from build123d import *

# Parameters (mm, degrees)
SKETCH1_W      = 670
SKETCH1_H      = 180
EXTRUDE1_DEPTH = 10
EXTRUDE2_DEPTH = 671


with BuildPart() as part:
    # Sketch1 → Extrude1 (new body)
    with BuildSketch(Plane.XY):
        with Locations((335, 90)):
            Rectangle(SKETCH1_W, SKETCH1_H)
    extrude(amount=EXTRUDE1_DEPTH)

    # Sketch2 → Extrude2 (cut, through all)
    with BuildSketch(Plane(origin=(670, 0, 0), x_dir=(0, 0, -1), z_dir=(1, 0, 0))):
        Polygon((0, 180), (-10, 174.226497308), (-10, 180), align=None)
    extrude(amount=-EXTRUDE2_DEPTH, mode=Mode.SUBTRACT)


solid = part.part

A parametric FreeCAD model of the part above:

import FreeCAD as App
import Part
import Sketcher
Q = App.Units.Quantity

doc = App.newDocument("Part")
body = doc.addObject("PartDesign::Body", "Body")

sketch1 = body.newObject("Sketcher::SketchObject", "Sketch")
sketch1.AttachmentSupport = (doc.getObject("XY_Plane"), [""])
sketch1.MapMode = "FlatFace"
sketch1.addGeometry([
    Part.LineSegment(App.Vector(0, 180, 0), App.Vector(0, 0, 0)),
    Part.LineSegment(App.Vector(0, 0, 0), App.Vector(670, 0, 0)),
    Part.LineSegment(App.Vector(670, 0, 0), App.Vector(670, 180, 0)),
    Part.LineSegment(App.Vector(670, 180, 0), App.Vector(0, 180, 0)),
], False)
sketch1.addConstraint([
    Sketcher.Constraint("Coincident", 0, 2, 1, 1),
    Sketcher.Constraint("Coincident", 1, 2, 2, 1),
    Sketcher.Constraint("Coincident", 2, 2, 3, 1),
    Sketcher.Constraint("Coincident", 3, 2, 0, 1),
    Sketcher.Constraint("Vertical", 0),
    Sketcher.Constraint("Horizontal", 1),
    Sketcher.Constraint("Vertical", 2),
    Sketcher.Constraint("Horizontal", 3),
    Sketcher.Constraint("Coincident", 0, 2, -1, 1),
    Sketcher.Constraint("DistanceX", 1, 1, 1, 2, 670.0),
    Sketcher.Constraint("DistanceY", 0, 2, 0, 1, 180.0),
])
pad1 = body.newObject("PartDesign::Pad", "Pad")
pad1.Profile = sketch1
pad1.Length = 10

sketch2 = body.newObject("Sketcher::SketchObject", "Sketch001")
sketch2.AttachmentSupport = (doc.getObject("YZ_Plane"), [""])
sketch2.MapMode = "FlatFace"
sketch2.AttachmentOffset = App.Placement(App.Vector(0, 0, 670), App.Rotation())
sketch2.addGeometry([
    Part.LineSegment(App.Vector(174, 10, 0), App.Vector(180, 0, 0)),
    Part.LineSegment(App.Vector(180, 0, 0), App.Vector(180, 10, 0)),
    Part.LineSegment(App.Vector(180, 10, 0), App.Vector(174, 10, 0)),
], False)
sketch2.addConstraint([
    Sketcher.Constraint("Coincident", 0, 2, 1, 1),
    Sketcher.Constraint("Coincident", 1, 2, 2, 1),
    Sketcher.Constraint("Coincident", 2, 2, 0, 1),
    Sketcher.Constraint("Vertical", 1),
    Sketcher.Constraint("Horizontal", 2),
    Sketcher.Constraint("PointOnObject", 0, 2, -1),
    Sketcher.Constraint("DistanceY", 1, 1, 1, 2, 10.0),
    Sketcher.Constraint("Angle", 0, Q("-60 deg")),
    Sketcher.Constraint("DistanceX", -1, 1, 0, 2, 180.0),
])
pocket1 = body.newObject("PartDesign::Pocket", "Pocket")
pocket1.Profile = sketch2
pocket1.Type = "ThroughAll"

doc.recompute()
